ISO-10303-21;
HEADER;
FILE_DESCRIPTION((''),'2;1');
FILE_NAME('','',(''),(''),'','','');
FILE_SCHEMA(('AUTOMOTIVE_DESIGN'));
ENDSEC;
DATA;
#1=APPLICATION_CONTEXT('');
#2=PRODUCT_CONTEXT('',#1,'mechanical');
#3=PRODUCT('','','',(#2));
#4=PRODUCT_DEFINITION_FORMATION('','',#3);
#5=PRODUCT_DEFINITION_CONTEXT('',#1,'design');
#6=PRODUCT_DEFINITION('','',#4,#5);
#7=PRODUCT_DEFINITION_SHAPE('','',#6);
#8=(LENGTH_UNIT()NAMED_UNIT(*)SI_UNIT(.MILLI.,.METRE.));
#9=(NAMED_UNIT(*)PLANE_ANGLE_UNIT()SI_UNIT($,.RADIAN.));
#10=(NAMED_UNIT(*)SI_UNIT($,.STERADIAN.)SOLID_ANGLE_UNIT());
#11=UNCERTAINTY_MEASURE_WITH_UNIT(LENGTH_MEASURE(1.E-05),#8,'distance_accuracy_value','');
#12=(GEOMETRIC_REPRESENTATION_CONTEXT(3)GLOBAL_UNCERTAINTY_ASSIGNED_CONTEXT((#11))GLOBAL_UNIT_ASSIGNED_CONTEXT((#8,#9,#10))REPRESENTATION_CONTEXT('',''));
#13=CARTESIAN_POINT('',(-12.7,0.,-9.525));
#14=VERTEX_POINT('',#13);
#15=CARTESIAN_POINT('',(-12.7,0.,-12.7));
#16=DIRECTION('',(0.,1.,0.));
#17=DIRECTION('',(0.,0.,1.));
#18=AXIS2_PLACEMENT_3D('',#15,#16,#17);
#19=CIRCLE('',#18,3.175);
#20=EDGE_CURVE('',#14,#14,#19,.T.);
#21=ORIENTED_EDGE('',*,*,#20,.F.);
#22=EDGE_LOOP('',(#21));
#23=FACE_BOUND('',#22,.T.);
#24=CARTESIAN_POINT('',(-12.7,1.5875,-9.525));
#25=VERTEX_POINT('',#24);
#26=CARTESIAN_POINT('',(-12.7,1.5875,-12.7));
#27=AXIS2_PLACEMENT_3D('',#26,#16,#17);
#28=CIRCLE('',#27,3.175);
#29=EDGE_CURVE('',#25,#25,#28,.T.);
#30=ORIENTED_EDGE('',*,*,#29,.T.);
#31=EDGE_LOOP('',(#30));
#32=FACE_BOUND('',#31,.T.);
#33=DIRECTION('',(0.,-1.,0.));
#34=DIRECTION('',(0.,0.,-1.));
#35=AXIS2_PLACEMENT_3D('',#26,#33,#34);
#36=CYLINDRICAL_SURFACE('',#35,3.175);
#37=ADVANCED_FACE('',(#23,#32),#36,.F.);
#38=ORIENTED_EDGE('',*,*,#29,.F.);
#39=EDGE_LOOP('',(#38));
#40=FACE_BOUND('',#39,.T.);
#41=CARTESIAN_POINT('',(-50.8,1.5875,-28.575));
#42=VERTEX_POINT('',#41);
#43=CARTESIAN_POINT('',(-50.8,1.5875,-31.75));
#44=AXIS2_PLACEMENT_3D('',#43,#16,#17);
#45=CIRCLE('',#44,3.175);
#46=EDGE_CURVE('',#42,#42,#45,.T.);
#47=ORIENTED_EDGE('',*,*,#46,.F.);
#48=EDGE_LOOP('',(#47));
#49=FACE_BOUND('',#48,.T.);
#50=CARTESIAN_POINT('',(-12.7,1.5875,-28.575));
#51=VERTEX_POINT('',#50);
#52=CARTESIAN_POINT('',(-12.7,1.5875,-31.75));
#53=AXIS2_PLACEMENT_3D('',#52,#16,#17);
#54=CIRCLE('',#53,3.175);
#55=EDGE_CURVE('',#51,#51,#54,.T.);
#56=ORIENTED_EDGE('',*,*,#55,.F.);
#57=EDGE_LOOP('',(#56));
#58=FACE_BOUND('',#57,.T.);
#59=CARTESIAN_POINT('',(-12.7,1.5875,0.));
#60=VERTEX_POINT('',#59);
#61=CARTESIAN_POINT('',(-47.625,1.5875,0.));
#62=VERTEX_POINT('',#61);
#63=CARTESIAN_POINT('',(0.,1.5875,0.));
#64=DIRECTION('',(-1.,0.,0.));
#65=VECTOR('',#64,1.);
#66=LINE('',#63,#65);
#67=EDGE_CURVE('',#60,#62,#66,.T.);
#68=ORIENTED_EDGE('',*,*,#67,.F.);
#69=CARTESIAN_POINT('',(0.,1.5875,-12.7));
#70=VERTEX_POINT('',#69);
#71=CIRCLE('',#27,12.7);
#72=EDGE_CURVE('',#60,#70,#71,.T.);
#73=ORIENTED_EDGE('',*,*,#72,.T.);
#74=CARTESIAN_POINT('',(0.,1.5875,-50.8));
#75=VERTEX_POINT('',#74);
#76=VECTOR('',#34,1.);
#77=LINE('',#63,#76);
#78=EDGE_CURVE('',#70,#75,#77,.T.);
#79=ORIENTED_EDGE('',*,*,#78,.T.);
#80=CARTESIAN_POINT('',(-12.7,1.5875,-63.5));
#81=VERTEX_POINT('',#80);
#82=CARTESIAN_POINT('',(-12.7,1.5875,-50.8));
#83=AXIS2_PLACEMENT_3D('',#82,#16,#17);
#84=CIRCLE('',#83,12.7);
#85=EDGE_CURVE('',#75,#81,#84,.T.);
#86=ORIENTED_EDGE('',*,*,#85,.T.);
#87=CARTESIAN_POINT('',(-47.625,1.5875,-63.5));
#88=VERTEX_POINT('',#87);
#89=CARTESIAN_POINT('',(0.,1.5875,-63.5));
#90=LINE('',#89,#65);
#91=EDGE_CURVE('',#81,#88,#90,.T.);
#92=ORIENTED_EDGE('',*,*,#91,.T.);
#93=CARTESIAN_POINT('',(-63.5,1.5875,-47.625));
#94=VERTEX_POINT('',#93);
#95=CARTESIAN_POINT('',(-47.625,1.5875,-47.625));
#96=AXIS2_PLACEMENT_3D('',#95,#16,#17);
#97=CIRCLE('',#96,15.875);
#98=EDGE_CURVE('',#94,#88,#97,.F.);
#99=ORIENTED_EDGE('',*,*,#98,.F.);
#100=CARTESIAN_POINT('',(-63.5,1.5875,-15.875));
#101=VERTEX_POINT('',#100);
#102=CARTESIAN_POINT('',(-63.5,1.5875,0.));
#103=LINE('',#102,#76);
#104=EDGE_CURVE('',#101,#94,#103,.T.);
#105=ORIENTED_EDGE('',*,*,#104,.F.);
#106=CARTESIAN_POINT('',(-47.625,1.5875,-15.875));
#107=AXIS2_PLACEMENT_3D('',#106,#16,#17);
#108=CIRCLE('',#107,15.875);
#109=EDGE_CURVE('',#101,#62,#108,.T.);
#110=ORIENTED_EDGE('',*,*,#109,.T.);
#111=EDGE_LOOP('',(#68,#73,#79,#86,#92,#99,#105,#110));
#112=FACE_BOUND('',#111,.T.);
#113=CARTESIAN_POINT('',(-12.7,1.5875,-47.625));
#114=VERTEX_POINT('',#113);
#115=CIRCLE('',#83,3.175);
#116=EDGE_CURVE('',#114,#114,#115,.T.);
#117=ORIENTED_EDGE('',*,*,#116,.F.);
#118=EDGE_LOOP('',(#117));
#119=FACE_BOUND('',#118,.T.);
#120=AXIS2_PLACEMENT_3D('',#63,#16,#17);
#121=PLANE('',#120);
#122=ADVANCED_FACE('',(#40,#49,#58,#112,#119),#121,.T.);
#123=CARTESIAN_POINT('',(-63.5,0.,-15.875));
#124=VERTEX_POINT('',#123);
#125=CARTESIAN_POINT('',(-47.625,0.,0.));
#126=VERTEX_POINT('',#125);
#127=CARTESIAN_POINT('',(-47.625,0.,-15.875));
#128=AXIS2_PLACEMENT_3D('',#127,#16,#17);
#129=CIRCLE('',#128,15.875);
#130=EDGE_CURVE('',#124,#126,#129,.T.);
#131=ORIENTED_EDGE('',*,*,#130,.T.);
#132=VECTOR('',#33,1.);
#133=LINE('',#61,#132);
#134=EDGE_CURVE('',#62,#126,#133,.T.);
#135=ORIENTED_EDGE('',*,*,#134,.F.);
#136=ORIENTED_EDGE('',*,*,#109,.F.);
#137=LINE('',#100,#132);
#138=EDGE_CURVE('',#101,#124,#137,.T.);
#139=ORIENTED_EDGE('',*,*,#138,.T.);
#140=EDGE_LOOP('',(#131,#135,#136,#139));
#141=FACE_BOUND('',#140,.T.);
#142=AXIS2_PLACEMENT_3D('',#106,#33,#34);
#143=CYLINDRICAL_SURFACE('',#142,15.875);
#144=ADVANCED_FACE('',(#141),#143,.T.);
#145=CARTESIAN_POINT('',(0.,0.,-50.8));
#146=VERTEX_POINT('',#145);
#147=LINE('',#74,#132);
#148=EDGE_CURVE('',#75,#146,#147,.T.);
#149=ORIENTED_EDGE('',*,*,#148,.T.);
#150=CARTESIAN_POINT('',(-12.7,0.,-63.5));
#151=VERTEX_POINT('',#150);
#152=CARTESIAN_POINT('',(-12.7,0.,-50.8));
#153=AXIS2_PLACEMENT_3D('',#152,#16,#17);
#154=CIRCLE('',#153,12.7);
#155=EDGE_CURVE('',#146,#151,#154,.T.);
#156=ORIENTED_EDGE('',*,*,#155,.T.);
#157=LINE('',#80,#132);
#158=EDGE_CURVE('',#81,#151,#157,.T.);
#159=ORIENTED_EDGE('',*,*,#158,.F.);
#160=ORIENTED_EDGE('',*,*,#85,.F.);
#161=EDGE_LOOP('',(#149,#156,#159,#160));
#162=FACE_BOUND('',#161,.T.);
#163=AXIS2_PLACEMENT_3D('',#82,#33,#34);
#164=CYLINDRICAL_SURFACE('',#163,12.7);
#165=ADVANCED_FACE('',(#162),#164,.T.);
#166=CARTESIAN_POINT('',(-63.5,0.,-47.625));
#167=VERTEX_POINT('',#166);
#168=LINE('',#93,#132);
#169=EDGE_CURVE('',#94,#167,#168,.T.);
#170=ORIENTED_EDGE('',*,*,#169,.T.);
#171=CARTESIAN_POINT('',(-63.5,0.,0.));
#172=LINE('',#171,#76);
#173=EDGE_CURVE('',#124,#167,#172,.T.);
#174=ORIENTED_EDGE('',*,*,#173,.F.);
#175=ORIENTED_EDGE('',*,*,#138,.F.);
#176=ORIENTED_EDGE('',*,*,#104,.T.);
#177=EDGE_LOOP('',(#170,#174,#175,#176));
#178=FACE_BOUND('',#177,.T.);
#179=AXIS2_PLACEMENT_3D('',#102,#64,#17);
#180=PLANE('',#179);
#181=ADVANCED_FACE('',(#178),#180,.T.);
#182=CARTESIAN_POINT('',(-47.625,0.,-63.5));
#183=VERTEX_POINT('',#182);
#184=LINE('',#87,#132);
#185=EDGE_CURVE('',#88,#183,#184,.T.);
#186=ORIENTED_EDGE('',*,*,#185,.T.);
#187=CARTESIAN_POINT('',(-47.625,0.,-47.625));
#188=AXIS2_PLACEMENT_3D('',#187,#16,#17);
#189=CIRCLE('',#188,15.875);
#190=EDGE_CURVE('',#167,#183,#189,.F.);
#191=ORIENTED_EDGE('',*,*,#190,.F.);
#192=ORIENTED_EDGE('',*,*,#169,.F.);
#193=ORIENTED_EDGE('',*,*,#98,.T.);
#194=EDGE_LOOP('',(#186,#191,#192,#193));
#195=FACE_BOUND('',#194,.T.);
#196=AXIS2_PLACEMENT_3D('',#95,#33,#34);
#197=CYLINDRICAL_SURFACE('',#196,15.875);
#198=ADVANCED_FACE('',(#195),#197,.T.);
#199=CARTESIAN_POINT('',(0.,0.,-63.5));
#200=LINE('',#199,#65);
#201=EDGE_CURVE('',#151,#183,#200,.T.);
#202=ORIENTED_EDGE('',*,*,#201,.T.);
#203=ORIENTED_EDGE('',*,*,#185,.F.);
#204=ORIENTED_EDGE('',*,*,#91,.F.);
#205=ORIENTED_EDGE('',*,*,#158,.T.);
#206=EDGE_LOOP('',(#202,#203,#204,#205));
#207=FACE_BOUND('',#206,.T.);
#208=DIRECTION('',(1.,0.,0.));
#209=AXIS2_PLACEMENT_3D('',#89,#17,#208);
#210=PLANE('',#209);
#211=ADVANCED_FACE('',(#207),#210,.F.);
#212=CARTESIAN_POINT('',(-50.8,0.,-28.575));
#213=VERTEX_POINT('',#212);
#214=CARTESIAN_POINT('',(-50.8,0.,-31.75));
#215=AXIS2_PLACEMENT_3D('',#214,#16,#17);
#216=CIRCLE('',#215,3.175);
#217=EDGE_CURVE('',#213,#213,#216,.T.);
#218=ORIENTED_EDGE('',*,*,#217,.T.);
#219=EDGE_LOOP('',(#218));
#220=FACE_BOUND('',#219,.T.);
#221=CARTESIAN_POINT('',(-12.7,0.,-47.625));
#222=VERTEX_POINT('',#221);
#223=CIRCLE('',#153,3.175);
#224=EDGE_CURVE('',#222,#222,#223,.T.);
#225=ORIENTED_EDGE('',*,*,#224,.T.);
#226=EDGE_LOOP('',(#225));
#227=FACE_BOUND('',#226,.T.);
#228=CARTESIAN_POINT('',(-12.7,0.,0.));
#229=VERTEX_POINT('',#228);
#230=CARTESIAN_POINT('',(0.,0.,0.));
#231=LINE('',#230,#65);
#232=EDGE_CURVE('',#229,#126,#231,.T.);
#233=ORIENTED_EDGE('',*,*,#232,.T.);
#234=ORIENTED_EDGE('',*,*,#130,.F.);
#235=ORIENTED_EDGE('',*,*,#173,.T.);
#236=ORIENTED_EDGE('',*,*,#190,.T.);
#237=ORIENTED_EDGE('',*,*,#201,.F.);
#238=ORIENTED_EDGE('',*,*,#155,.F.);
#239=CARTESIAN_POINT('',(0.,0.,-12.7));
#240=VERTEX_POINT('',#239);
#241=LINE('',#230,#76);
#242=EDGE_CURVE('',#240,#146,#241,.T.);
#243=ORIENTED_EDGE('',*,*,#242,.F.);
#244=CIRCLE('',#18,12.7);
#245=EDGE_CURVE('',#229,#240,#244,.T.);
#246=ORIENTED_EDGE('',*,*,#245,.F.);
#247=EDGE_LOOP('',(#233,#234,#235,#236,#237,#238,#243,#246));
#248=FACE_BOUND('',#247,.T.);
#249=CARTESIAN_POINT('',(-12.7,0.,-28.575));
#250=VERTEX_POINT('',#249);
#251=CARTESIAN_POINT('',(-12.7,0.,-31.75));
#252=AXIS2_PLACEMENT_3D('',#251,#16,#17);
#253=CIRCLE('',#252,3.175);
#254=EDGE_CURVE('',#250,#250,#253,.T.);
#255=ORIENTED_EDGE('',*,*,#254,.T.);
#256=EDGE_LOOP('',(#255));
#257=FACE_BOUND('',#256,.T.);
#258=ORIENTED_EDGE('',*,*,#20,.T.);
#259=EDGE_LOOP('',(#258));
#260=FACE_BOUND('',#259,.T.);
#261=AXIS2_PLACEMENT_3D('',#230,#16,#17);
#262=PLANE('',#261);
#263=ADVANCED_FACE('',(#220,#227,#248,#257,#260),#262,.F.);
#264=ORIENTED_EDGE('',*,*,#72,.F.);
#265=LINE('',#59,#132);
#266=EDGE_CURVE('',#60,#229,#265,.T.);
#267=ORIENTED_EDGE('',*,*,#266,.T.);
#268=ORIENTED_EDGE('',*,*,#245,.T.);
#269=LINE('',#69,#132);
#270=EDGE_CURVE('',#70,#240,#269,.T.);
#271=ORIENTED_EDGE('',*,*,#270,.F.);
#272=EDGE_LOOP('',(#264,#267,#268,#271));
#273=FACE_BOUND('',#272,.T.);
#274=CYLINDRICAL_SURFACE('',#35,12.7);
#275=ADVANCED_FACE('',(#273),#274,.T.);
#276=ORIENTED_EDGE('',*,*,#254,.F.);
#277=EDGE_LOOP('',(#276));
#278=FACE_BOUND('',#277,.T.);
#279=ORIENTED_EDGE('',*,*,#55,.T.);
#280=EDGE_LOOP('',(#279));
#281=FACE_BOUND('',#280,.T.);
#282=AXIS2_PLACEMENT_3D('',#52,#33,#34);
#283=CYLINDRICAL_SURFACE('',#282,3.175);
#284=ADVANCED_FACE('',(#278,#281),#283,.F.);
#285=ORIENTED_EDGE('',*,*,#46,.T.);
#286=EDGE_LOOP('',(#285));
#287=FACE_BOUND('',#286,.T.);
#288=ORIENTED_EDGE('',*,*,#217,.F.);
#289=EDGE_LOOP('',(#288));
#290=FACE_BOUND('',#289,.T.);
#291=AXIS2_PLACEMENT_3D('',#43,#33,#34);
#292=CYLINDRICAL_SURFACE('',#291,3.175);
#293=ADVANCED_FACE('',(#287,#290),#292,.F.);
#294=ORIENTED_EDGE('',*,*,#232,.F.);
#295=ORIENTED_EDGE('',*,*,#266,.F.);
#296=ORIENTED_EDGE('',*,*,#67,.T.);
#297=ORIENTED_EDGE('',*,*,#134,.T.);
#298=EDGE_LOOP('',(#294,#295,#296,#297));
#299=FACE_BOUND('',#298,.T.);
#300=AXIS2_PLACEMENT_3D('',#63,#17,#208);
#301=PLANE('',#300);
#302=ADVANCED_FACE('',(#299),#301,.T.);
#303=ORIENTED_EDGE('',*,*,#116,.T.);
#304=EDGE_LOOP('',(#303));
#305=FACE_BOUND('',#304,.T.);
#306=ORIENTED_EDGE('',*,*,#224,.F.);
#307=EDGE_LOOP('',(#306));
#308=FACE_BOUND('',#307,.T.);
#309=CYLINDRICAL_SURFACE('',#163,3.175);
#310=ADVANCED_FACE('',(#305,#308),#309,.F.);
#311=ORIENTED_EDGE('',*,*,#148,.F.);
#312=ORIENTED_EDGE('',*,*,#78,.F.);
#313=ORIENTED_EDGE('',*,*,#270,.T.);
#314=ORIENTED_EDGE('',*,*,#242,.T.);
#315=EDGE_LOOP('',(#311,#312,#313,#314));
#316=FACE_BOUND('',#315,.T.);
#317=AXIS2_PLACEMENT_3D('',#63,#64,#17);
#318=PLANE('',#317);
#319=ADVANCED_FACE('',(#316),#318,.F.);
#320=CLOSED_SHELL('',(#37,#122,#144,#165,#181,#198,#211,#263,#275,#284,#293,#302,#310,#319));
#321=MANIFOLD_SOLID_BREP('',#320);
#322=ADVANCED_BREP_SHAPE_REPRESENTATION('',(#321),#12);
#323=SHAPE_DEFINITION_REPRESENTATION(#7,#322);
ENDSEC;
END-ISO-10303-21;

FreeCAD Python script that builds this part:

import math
import FreeCAD as App
import Part
import Sketcher

V = App.Vector
Q = App.Units.Quantity

doc = App.newDocument("Part")
body = doc.addObject("PartDesign::Body", "Body")

sketch1 = body.newObject("Sketcher::SketchObject", "Sketch")
sketch1.AttachmentSupport = (doc.getObject("XZ_Plane"), [""])
sketch1.MapMode = "FlatFace"
sketch1.addGeometry([
    Part.LineSegment(V(-47.625, 0, 0), V(-12.7, 0, 0)),
    Part.ArcOfCircle(Part.Circle(V(-12.7, -12.7, 0), V(0, 0, 1), 12.7), math.radians(0), math.radians(90)),
    Part.LineSegment(V(0, -12.7, 0), V(0, -50.8, 0)),
    Part.ArcOfCircle(Part.Circle(V(-12.7, -50.8, 0), V(0, 0, 1), 12.7), math.radians(-90), math.radians(0)),
    Part.LineSegment(V(-12.7, -63.5, 0), V(-47.625, -63.5, 0)),
    Part.ArcOfCircle(Part.Circle(V(-47.625, -47.625, 0), V(0, 0, 1), 15.875), math.radians(-180), math.radians(-90)),
    Part.LineSegment(V(-63.5, -47.625, 0), V(-63.5, -15.875, 0)),
    Part.ArcOfCircle(Part.Circle(V(-47.625, -15.875, 0), V(0, 0, 1), 15.875), math.radians(90), math.radians(180)),
    Part.Circle(V(-12.7, -12.7, 0), V(0, 0, 1), 3.175),
    Part.Circle(V(-50.8, -31.75, 0), V(0, 0, 1), 3.175),
    Part.Circle(V(-12.7, -31.75, 0), V(0, 0, 1), 3.175),
    Part.Circle(V(-12.7, -50.8, 0), V(0, 0, 1), 3.175),
], False)
sketch1.addConstraint([
    Sketcher.Constraint("Tangent", 0, 2, 1, 2),
    Sketcher.Constraint("Tangent", 1, 1, 2, 1),
    Sketcher.Constraint("Tangent", 2, 2, 3, 2),
    Sketcher.Constraint("Tangent", 3, 1, 4, 1),
    Sketcher.Constraint("Tangent", 4, 2, 5, 2),
    Sketcher.Constraint("Tangent", 5, 1, 6, 1),
    Sketcher.Constraint("Tangent", 6, 2, 7, 2),
    Sketcher.Constraint("Tangent", 7, 1, 0, 1),
    Sketcher.Constraint("Horizontal", 0),
    Sketcher.Constraint("Vertical", 2),
    Sketcher.Constraint("Horizontal", 4),
    Sketcher.Constraint("Vertical", 6),
    Sketcher.Constraint("Coincident", 8, 3, 1, 3),
    Sketcher.Constraint("Coincident", 11, 3, 3, 3),
    Sketcher.Constraint("Equal", 1, 3),
    Sketcher.Constraint("Equal", 5, 7),
    Sketcher.Constraint("Equal", 8, 9),
    Sketcher.Constraint("Equal", 9, 10),
    Sketcher.Constraint("Equal", 10, 11),
    Sketcher.Constraint("PointOnObject", 0, 2, -1),
    Sketcher.Constraint("PointOnObject", 1, 1, -2),
    Sketcher.Constraint("Horizontal", 9, 3, 10, 3),
    Sketcher.Constraint("Vertical", 8, 3, 10, 3),
    Sketcher.Constraint("Radius", 1, Q("0.5 in")),
    Sketcher.Constraint("Diameter", 8, Q("0.25 in")),
    Sketcher.Constraint("DistanceY", 2, 2, 2, 1, Q("1.5 in")),
    Sketcher.Constraint("DistanceX", 9, 3, -1, 1, Q("2 in")),
    Sketcher.Constraint("Radius", 5, Q("0.625 in")),
    Sketcher.Constraint("DistanceX", 5, 1, 3, 3, Q("2 in")),
    Sketcher.Constraint("DistanceY", 9, 3, -1, 1, Q("1.25 in")),
])
pad1 = body.newObject("PartDesign::Pad", "Pad")
pad1.Profile = sketch1
pad1.Length = Q("0.0625 in")
pad1.Reversed = True

doc.recompute()
